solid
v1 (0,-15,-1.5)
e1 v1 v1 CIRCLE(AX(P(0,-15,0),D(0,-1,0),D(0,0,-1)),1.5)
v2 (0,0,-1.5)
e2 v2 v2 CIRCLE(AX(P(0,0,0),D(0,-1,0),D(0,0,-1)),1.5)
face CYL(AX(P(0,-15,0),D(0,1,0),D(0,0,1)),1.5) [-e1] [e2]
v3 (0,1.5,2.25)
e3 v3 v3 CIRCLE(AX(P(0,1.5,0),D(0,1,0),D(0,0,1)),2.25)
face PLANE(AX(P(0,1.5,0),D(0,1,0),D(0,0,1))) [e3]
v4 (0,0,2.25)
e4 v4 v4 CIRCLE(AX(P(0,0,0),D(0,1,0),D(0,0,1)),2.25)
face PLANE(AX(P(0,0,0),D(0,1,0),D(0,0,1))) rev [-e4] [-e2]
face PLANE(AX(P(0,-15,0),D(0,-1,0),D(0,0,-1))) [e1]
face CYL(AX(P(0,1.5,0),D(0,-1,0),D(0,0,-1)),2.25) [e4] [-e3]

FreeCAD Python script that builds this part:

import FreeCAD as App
import Part
import Sketcher

doc = App.newDocument("Part")
body = doc.addObject("PartDesign::Body", "Body")

# Sketch on XZ plane
sketch1 = body.newObject("Sketcher::SketchObject", "Sketch")
sketch1.AttachmentSupport = (doc.getObject("XZ_Plane"), [""])
sketch1.MapMode = "FlatFace"
sketch1.addGeometry(Part.Circle(App.Vector(0, 0, 0), App.Vector(0, 0, 1), 2.25), False)
sketch1.addConstraint([
    Sketcher.Constraint("Coincident", 0, 3, -1, 1),
    Sketcher.Constraint("Diameter", 0, 4.5),
])
pad1 = body.newObject("PartDesign::Pad", "Pad")
pad1.Profile = sketch1
pad1.Length = 1.5
pad1.Reversed = True

# Sketch on XZ plane
sketch2 = body.newObject("Sketcher::SketchObject", "Sketch001")
sketch2.AttachmentSupport = (doc.getObject("XZ_Plane"), [""])
sketch2.MapMode = "FlatFace"
sketch2.addGeometry(Part.Circle(App.Vector(0, 0, 0), App.Vector(0, 0, 1), 1.5), False)
sketch2.addConstraint([
    Sketcher.Constraint("Coincident", 0, 3, -1, 1),
    Sketcher.Constraint("Diameter", 0, 3.0),
])
pad2 = body.newObject("PartDesign::Pad", "Pad001")
pad2.Profile = sketch2
pad2.Length = 15

doc.recompute()
